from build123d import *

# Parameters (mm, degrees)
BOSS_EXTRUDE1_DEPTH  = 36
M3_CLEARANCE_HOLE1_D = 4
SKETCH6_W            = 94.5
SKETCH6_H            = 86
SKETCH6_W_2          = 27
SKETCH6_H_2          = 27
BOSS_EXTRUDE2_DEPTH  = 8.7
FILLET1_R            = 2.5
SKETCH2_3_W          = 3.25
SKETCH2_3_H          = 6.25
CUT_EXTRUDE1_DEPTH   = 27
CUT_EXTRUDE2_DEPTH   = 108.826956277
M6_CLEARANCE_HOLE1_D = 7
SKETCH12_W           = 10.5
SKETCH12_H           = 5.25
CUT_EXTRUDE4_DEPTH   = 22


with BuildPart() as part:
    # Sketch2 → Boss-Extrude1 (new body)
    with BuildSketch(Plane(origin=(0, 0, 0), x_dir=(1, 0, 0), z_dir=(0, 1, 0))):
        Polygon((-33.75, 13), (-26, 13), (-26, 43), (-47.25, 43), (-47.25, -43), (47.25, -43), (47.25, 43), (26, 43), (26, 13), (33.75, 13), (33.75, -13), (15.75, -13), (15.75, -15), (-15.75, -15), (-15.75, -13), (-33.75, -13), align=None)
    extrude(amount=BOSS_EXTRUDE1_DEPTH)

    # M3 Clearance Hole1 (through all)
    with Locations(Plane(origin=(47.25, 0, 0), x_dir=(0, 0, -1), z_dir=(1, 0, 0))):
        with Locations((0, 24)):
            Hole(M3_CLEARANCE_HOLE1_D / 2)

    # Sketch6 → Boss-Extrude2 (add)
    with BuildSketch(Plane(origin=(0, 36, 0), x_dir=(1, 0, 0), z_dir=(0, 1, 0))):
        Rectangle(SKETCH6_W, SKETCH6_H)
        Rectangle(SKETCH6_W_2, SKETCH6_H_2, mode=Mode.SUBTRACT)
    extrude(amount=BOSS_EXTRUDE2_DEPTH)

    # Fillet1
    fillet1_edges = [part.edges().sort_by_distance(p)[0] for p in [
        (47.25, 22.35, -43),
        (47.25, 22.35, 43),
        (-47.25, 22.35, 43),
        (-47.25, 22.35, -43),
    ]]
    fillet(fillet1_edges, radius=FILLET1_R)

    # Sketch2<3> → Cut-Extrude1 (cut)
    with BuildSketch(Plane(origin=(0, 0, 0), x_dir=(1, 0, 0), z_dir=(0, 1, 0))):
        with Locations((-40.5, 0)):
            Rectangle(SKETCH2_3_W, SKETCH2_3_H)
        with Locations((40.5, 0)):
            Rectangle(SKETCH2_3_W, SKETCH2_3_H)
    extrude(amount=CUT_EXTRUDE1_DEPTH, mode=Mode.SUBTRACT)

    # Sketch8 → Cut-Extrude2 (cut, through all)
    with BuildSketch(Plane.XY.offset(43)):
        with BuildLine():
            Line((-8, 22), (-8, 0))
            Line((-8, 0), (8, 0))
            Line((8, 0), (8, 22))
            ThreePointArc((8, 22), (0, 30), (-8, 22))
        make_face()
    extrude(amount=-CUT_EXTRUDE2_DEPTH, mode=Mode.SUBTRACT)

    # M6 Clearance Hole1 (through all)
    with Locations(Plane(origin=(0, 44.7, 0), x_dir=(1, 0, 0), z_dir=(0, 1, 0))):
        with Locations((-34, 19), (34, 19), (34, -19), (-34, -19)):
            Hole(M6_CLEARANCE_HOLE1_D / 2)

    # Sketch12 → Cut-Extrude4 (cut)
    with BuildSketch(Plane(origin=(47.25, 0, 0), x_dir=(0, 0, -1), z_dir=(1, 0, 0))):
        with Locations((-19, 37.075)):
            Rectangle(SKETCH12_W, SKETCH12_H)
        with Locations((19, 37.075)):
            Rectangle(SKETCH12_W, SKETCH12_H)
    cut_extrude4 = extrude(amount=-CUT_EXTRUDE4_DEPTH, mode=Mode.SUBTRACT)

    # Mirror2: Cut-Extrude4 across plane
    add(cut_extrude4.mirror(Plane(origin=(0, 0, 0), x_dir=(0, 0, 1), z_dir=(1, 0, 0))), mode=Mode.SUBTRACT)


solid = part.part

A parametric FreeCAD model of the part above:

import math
import FreeCAD as App
import Part
import Sketcher

V = App.Vector
Q = App.Units.Quantity


def edges_at(feature, points):
    """Names of the edges that pass closest to the given points."""
    edges = feature.Shape.Edges
    near = lambda p: min(range(len(edges)), key=lambda i: edges[i].distToShape(Part.Vertex(*p))[0])
    return sorted({f"Edge{near(p) + 1}" for p in points})

doc = App.newDocument("Part")
body = doc.addObject("PartDesign::Body", "Body")

# Sketch on XZ plane
sketch1 = body.newObject("Sketcher::SketchObject", "Sketch")
sketch1.AttachmentSupport = (doc.getObject("XZ_Plane"), [""])
sketch1.MapMode = "FlatFace"
sketch1.addGeometry(Part.LineSegment(V(-33.8, -13, 0), V(-26, -13, 0)), False)
sketch1.addGeometry(Part.LineSegment(V(-26, -13, 0), V(-26, -43, 0)), False)
sketch1.addGeometry(Part.LineSegment(V(-26, -43, 0), V(-47.2, -43, 0)), False)
sketch1.addGeometry(Part.LineSegment(V(-47.2, -43, 0), V(-47.2, 43, 0)), False)
sketch1.addGeometry(Part.LineSegment(V(-47.2, 43, 0), V(47.2, 43, 0)), False)
sketch1.addGeometry(Part.LineSegment(V(47.2, 43, 0), V(47.2, -43, 0)), False)
sketch1.addGeometry(Part.LineSegment(V(47.2, -43, 0), V(26, -43, 0)), False)
sketch1.addGeometry(Part.LineSegment(V(26, -43, 0), V(26, -13, 0)), False)
sketch1.addGeometry(Part.LineSegment(V(26, -13, 0), V(33.8, -13, 0)), False)
sketch1.addGeometry(Part.LineSegment(V(33.8, -13, 0), V(33.8, 13, 0)), False)
sketch1.addGeometry(Part.LineSegment(V(33.8, 13, 0), V(15.8, 13, 0)), False)
sketch1.addGeometry(Part.LineSegment(V(15.8, 13, 0), V(15.8, 15, 0)), False)
sketch1.addGeometry(Part.LineSegment(V(15.8, 15, 0), V(-15.8, 15, 0)), False)
sketch1.addGeometry(Part.LineSegment(V(-15.8, 15, 0), V(-15.8, 13, 0)), False)
sketch1.addGeometry(Part.LineSegment(V(-15.8, 13, 0), V(-33.8, 13, 0)), False)
sketch1.addGeometry(Part.LineSegment(V(-33.8, 13, 0), V(-33.8, -13, 0)), False)
sketch1.addConstraint(Sketcher.Constraint("Coincident", 0, 2, 1, 1))
sketch1.addConstraint(Sketcher.Constraint("Coincident", 1, 2, 2, 1))
sketch1.addConstraint(Sketcher.Constraint("Coincident", 2, 2, 3, 1))
sketch1.addConstraint(Sketcher.Constraint("Coincident", 3, 2, 4, 1))
sketch1.addConstraint(Sketcher.Constraint("Coincident", 4, 2, 5, 1))
sketch1.addConstraint(Sketcher.Constraint("Coincident", 5, 2, 6, 1))
sketch1.addConstraint(Sketcher.Constraint("Coincident", 6, 2, 7, 1))
sketch1.addConstraint(Sketcher.Constraint("Coincident", 7, 2, 8, 1))
sketch1.addConstraint(Sketcher.Constraint("Coincident", 8, 2, 9, 1))
sketch1.addConstraint(Sketcher.Constraint("Coincident", 9, 2, 10, 1))
sketch1.addConstraint(Sketcher.Constraint("Coincident", 10, 2, 11, 1))
sketch1.addConstraint(Sketcher.Constraint("Coincident", 11, 2, 12, 1))
sketch1.addConstraint(Sketcher.Constraint("Coincident", 12, 2, 13, 1))
sketch1.addConstraint(Sketcher.Constraint("Coincident", 13, 2, 14, 1))
sketch1.addConstraint(Sketcher.Constraint("Coincident", 14, 2, 15, 1))
sketch1.addConstraint(Sketcher.Constraint("Coincident", 15, 2, 0, 1))
sketch1.addConstraint(Sketcher.Constraint("Horizontal", 0))
sketch1.addConstraint(Sketcher.Constraint("Vertical", 1))
sketch1.addConstraint(Sketcher.Constraint("Horizontal", 2))
sketch1.addConstraint(Sketcher.Constraint("Vertical", 3))
sketch1.addConstraint(Sketcher.Constraint("Horizontal", 4))
sketch1.addConstraint(Sketcher.Constraint("Vertical", 5))
sketch1.addConstraint(Sketcher.Constraint("Horizontal", 6))
sketch1.addConstraint(Sketcher.Constraint("Vertical", 7))
sketch1.addConstraint(Sketcher.Constraint("Horizontal", 8))
sketch1.addConstraint(Sketcher.Constraint("Vertical", 9))
sketch1.addConstraint(Sketcher.Constraint("Horizontal", 10))
sketch1.addConstraint(Sketcher.Constraint("Vertical", 11))
sketch1.addConstraint(Sketcher.Constraint("Horizontal", 12))
sketch1.addConstraint(Sketcher.Constraint("Vertical", 13))
sketch1.addConstraint(Sketcher.Constraint("Horizontal", 14))
sketch1.addConstraint(Sketcher.Constraint("Vertical", 15))
sketch1.addConstraint(Sketcher.Constraint("Symmetric", 2, 2, 4, 2, -1, 1))
sketch1.addConstraint(Sketcher.Constraint("Symmetric", 8, 2, 14, 2, -1, 1))
sketch1.addConstraint(Sketcher.Constraint("Symmetric", 1, 2, 6, 2, -2))
sketch1.addConstraint(Sketcher.Constraint("Symmetric", 10, 2, 13, 2, -2))
sketch1.addConstraint(Sketcher.Constraint("Horizontal", 0, 2, 7, 2))
sketch1.addConstraint(Sketcher.Constraint("DistanceX", 10, 2, 10, 1, Q("18 mm")))
sketch1.addConstraint(Sketcher.Constraint("DistanceY", 1, 2, 1, 1, Q("30 mm")))
sketch1.addConstraint(Sketcher.Constraint("DistanceY", 3, 1, 3, 2, Q("86 mm")))
sketch1.addConstraint(Sketcher.Constraint("DistanceY", 11, 1, 11, 2, Q("2 mm")))
sketch1.addConstraint(Sketcher.Constraint("DistanceX", 4, 1, 4, 2, Q("94.5 mm")))
sketch1.addConstraint(Sketcher.Constraint("DistanceX", 12, 2, 12, 1, Q("31.5 mm")))
sketch1.addConstraint(Sketcher.Constraint("DistanceX", 0, 2, -1, 1, Q("26 mm")))
pad1 = body.newObject("PartDesign::Pad", "Pad")
pad1.Profile = sketch1
pad1.Length = 36
pad1.Reversed = True

# Sketch on YZ plane
sketch2 = body.newObject("Sketcher::SketchObject", "Sketch001")
sketch2.AttachmentSupport = (doc.getObject("YZ_Plane"), [""])
sketch2.MapMode = "FlatFace"
sketch2.AttachmentOffset = App.Placement(V(0, 0, 47.25), App.Rotation())
sketch2.addGeometry(Part.Circle(V(24, 0, 0), V(0, 0, 1), 2), False)
sketch2.addConstraint(Sketcher.Constraint("PointOnObject", 0, 3, -1))
sketch2.addConstraint(Sketcher.Constraint("Diameter", 0, Q("4 mm")))
sketch2.addConstraint(Sketcher.Constraint("DistanceX", -1, 1, 0, 3, Q("24 mm")))
doc.recompute()
hole = body.newObject("PartDesign::Hole", "Hole")
hole.Profile = sketch2
hole.ThreadType = "None"
hole.Diameter = 4
hole.DepthType = "ThroughAll"

# Sketch on XZ plane
sketch3 = body.newObject("Sketcher::SketchObject", "Sketch002")
sketch3.AttachmentSupport = (doc.getObject("XZ_Plane"), [""])
sketch3.MapMode = "FlatFace"
sketch3.AttachmentOffset = App.Placement(V(0, 0, -36), App.Rotation())
sketch3.addGeometry(Part.LineSegment(V(-47, -43, 0), V(-47, 43, 0)), False)
sketch3.addGeometry(Part.LineSegment(V(-47, 43, 0), V(47, 43, 0)), False)
sketch3.addGeometry(Part.LineSegment(V(47, 43, 0), V(47, -43, 0)), False)
sketch3.addGeometry(Part.LineSegment(V(47, -43, 0), V(-47, -43, 0)), False)
sketch3.addGeometry(Part.LineSegment(V(14, 14, 0), V(-14, 14, 0)), False)
sketch3.addGeometry(Part.LineSegment(V(-14, 14, 0), V(-14, -14, 0)), False)
sketch3.addGeometry(Part.LineSegment(V(-14, -14, 0), V(14, -14, 0)), False)
sketch3.addGeometry(Part.LineSegment(V(14, -14, 0), V(14, 14, 0)), False)
sketch3.addConstraint(Sketcher.Constraint("Coincident", 0, 2, 1, 1))
sketch3.addConstraint(Sketcher.Constraint("Coincident", 1, 2, 2, 1))
sketch3.addConstraint(Sketcher.Constraint("Coincident", 2, 2, 3, 1))
sketch3.addConstraint(Sketcher.Constraint("Coincident", 3, 2, 0, 1))
sketch3.addConstraint(Sketcher.Constraint("Coincident", 4, 2, 5, 1))
sketch3.addConstraint(Sketcher.Constraint("Coincident", 5, 2, 6, 1))
sketch3.addConstraint(Sketcher.Constraint("Coincident", 6, 2, 7, 1))
sketch3.addConstraint(Sketcher.Constraint("Coincident", 7, 2, 4, 1))
sketch3.addConstraint(Sketcher.Constraint("Vertical", 0))
sketch3.addConstraint(Sketcher.Constraint("Horizontal", 1))
sketch3.addConstraint(Sketcher.Constraint("Vertical", 2))
sketch3.addConstraint(Sketcher.Constraint("Horizontal", 3))
sketch3.addConstraint(Sketcher.Constraint("Horizontal", 4))
sketch3.addConstraint(Sketcher.Constraint("Vertical", 5))
sketch3.addConstraint(Sketcher.Constraint("Horizontal", 6))
sketch3.addConstraint(Sketcher.Constraint("Vertical", 7))
sketch3.addConstraint(Sketcher.Constraint("Symmetric", 0, 2, 2, 2, -1, 1))
sketch3.addConstraint(Sketcher.Constraint("Symmetric", 4, 2, 6, 2, -1, 1))
sketch3.addConstraint(Sketcher.Constraint("Equal", 6, 5))
sketch3.addConstraint(Sketcher.Constraint("DistanceX", 4, 2, 4, 1, Q("27 mm")))
sketch3.addConstraint(Sketcher.Constraint("DistanceY", 0, 1, 0, 2, Q("86 mm")))
sketch3.addConstraint(Sketcher.Constraint("DistanceX", 1, 1, 1, 2, Q("94.5 mm")))
pad2 = body.newObject("PartDesign::Pad", "Pad001")
pad2.Profile = sketch3
pad2.Length = 8.7
pad2.Reversed = True
doc.recompute()

fillet = body.newObject("PartDesign::Fillet", "Fillet")
fillet.Base = (pad2, edges_at(pad2, [
    (47.25, 22.35, -43),
    (47.25, 22.35, 43),
    (-47.25, 22.35, 43),
    (-47.25, 22.35, -43),
]))
fillet.Radius = 2.5

# Sketch on XZ plane
sketch4 = body.newObject("Sketcher::SketchObject", "Sketch003")
sketch4.AttachmentSupport = (doc.getObject("XZ_Plane"), [""])
sketch4.MapMode = "FlatFace"
sketch4.addGeometry(Part.LineSegment(V(-42.1, -3.1, 0), V(-42.1, 3.1, 0)), False)
sketch4.addGeometry(Part.LineSegment(V(-42.1, 3.1, 0), V(-38.9, 3.1, 0)), False)
sketch4.addGeometry(Part.LineSegment(V(-38.9, 3.1, 0), V(-38.9, -3.1, 0)), False)
sketch4.addGeometry(Part.LineSegment(V(-38.9, -3.1, 0), V(-42.1, -3.1, 0)), False)
sketch4.addGeometry(Part.LineSegment(V(38.9, -3.1, 0), V(38.9, 3.1, 0)), False)
sketch4.addGeometry(Part.LineSegment(V(38.9, 3.1, 0), V(42.1, 3.1, 0)), False)
sketch4.addGeometry(Part.LineSegment(V(42.1, 3.1, 0), V(42.1, -3.1, 0)), False)
sketch4.addGeometry(Part.LineSegment(V(42.1, -3.1, 0), V(38.9, -3.1, 0)), False)
sketch4.addConstraint(Sketcher.Constraint("Coincident", 0, 2, 1, 1))
sketch4.addConstraint(Sketcher.Constraint("Coincident", 1, 2, 2, 1))
sketch4.addConstraint(Sketcher.Constraint("Coincident", 2, 2, 3, 1))
sketch4.addConstraint(Sketcher.Constraint("Coincident", 3, 2, 0, 1))
sketch4.addConstraint(Sketcher.Constraint("Coincident", 4, 2, 5, 1))
sketch4.addConstraint(Sketcher.Constraint("Coincident", 5, 2, 6, 1))
sketch4.addConstraint(Sketcher.Constraint("Coincident", 6, 2, 7, 1))
sketch4.addConstraint(Sketcher.Constraint("Coincident", 7, 2, 4, 1))
sketch4.addConstraint(Sketcher.Constraint("Vertical", 0))
sketch4.addConstraint(Sketcher.Constraint("Horizontal", 1))
sketch4.addConstraint(Sketcher.Constraint("Vertical", 2))
sketch4.addConstraint(Sketcher.Constraint("Horizontal", 3))
sketch4.addConstraint(Sketcher.Constraint("Vertical", 4))
sketch4.addConstraint(Sketcher.Constraint("Horizontal", 5))
sketch4.addConstraint(Sketcher.Constraint("Vertical", 6))
sketch4.addConstraint(Sketcher.Constraint("Horizontal", 7))
sketch4.addConstraint(Sketcher.Constraint("Symmetric", 2, 2, 4, 2, -1, 1))
sketch4.addConstraint(Sketcher.Constraint("Symmetric", 0, 2, 6, 2, -1, 1))
sketch4.addConstraint(Sketcher.Constraint("Horizontal", 1, 2, 4, 2))
sketch4.addConstraint(Sketcher.Constraint("DistanceX", 0, 2, 4, 2, Q("81 mm")))
sketch4.addConstraint(Sketcher.Constraint("DistanceX", 1, 1, 1, 2, Q("3.25 mm")))
sketch4.addConstraint(Sketcher.Constraint("DistanceY", 0, 1, 0, 2, Q("6.25 mm")))
pocket1 = body.newObject("PartDesign::Pocket", "Pocket")
pocket1.Profile = sketch4
pocket1.Length = 27

# Sketch on XY plane
sketch5 = body.newObject("Sketcher::SketchObject", "Sketch004")
sketch5.AttachmentSupport = (doc.getObject("XY_Plane"), [""])
sketch5.MapMode = "FlatFace"
sketch5.AttachmentOffset = App.Placement(V(0, 0, 43), App.Rotation())
sketch5.addGeometry(Part.LineSegment(V(-8, 22, 0), V(-8, 0, 0)), False)
sketch5.addGeometry(Part.LineSegment(V(-8, 0, 0), V(8, 0, 0)), False)
sketch5.addGeometry(Part.LineSegment(V(8, 0, 0), V(8, 22, 0)), False)
sketch5.addGeometry(Part.ArcOfCircle(Part.Circle(V(0, 22, 0), V(0, 0, 1), 8), math.radians(0), math.radians(180)), False)
sketch5.addConstraint(Sketcher.Constraint("Coincident", 0, 2, 1, 1))
sketch5.addConstraint(Sketcher.Constraint("Coincident", 1, 2, 2, 1))
sketch5.addConstraint(Sketcher.Constraint("Tangent", 2, 2, 3, 1))
sketch5.addConstraint(Sketcher.Constraint("Tangent", 3, 2, 0, 1))
sketch5.addConstraint(Sketcher.Constraint("Vertical", 0))
sketch5.addConstraint(Sketcher.Constraint("Horizontal", 1))
sketch5.addConstraint(Sketcher.Constraint("Vertical", 2))
sketch5.addConstraint(Sketcher.Constraint("Symmetric", 0, 2, 1, 2, -1, 1))
sketch5.addConstraint(Sketcher.Constraint("Radius", 3, Q("8 mm")))
sketch5.addConstraint(Sketcher.Constraint("DistanceY", 0, 2, 0, 1, Q("22 mm")))
pocket2 = body.newObject("PartDesign::Pocket", "Pocket001")
pocket2.Profile = sketch5
pocket2.Type = "ThroughAll"

# Sketch on XZ plane
sketch6 = body.newObject("Sketcher::SketchObject", "Sketch005")
sketch6.AttachmentSupport = (doc.getObject("XZ_Plane"), [""])
sketch6.MapMode = "FlatFace"
sketch6.AttachmentOffset = App.Placement(V(0, 0, -44.7), App.Rotation())
sketch6.addGeometry(Part.Circle(V(-34, -19, 0), V(0, 0, 1), 3.5), False)
sketch6.addGeometry(Part.Circle(V(34, -19, 0), V(0, 0, 1), 3.5), False)
sketch6.addGeometry(Part.Circle(V(34, 19, 0), V(0, 0, 1), 3.5), False)
sketch6.addGeometry(Part.Circle(V(-34, 19, 0), V(0, 0, 1), 3.5), False)
sketch6.addConstraint(Sketcher.Constraint("Equal", 0, 1))
sketch6.addConstraint(Sketcher.Constraint("Equal", 1, 2))
sketch6.addConstraint(Sketcher.Constraint("Equal", 2, 3))
sketch6.addConstraint(Sketcher.Constraint("Symmetric", 0, 3, 2, 3, -1, 1))
sketch6.addConstraint(Sketcher.Constraint("Symmetric", 1, 3, 3, 3, -1, 1))
sketch6.addConstraint(Sketcher.Constraint("Symmetric", 0, 3, 1, 3, -2))
sketch6.addConstraint(Sketcher.Constraint("Diameter", 0, Q("7 mm")))
sketch6.addConstraint(Sketcher.Constraint("DistanceX", 0, 3, -1, 1, Q("34 mm")))
sketch6.addConstraint(Sketcher.Constraint("DistanceY", 0, 3, -1, 1, Q("19 mm")))
doc.recompute()
hole2 = body.newObject("PartDesign::Hole", "Hole001")
hole2.Profile = sketch6
hole2.ThreadType = "None"
hole2.Diameter = 7
hole2.DepthType = "ThroughAll"
hole2.Reversed = True

# Sketch on YZ plane
sketch7 = body.newObject("Sketcher::SketchObject", "Sketch006")
sketch7.AttachmentSupport = (doc.getObject("YZ_Plane"), [""])
sketch7.MapMode = "FlatFace"
sketch7.AttachmentOffset = App.Placement(V(0, 0, 47.25), App.Rotation())
sketch7.addGeometry(Part.LineSegment(V(40, 24, 0), V(34, 24, 0)), False)
sketch7.addGeometry(Part.LineSegment(V(34, 24, 0), V(34, 14, 0)), False)
sketch7.addGeometry(Part.LineSegment(V(34, 14, 0), V(40, 14, 0)), False)
sketch7.addGeometry(Part.LineSegment(V(40, 14, 0), V(40, 24, 0)), False)
sketch7.addGeometry(Part.LineSegment(V(40, -14, 0), V(34, -14, 0)), False)
sketch7.addGeometry(Part.LineSegment(V(34, -14, 0), V(34, -24, 0)), False)
sketch7.addGeometry(Part.LineSegment(V(34, -24, 0), V(40, -24, 0)), False)
sketch7.addGeometry(Part.LineSegment(V(40, -24, 0), V(40, -14, 0)), False)
sketch7.addConstraint(Sketcher.Constraint("Coincident", 0, 2, 1, 1))
sketch7.addConstraint(Sketcher.Constraint("Coincident", 1, 2, 2, 1))
sketch7.addConstraint(Sketcher.Constraint("Coincident", 2, 2, 3, 1))
sketch7.addConstraint(Sketcher.Constraint("Coincident", 3, 2, 0, 1))
sketch7.addConstraint(Sketcher.Constraint("Coincident", 4, 2, 5, 1))
sketch7.addConstraint(Sketcher.Constraint("Coincident", 5, 2, 6, 1))
sketch7.addConstraint(Sketcher.Constraint("Coincident", 6, 2, 7, 1))
sketch7.addConstraint(Sketcher.Constraint("Coincident", 7, 2, 4, 1))
sketch7.addConstraint(Sketcher.Constraint("Horizontal", 0))
sketch7.addConstraint(Sketcher.Constraint("Vertical", 1))
sketch7.addConstraint(Sketcher.Constraint("Horizontal", 2))
sketch7.addConstraint(Sketcher.Constraint("Vertical", 3))
sketch7.addConstraint(Sketcher.Constraint("Horizontal", 4))
sketch7.addConstraint(Sketcher.Constraint("Vertical", 5))
sketch7.addConstraint(Sketcher.Constraint("Horizontal", 6))
sketch7.addConstraint(Sketcher.Constraint("Vertical", 7))
sketch7.addConstraint(Sketcher.Constraint("Symmetric", 1, 2, 4, 2, -1))
sketch7.addConstraint(Sketcher.Constraint("Symmetric", 3, 2, 6, 2, -1))
sketch7.addConstraint(Sketcher.Constraint("DistanceY", 1, 2, 1, 1, Q("10.5 mm")))
sketch7.addConstraint(Sketcher.Constraint("DistanceY", 4, 2, 0, 2, Q("38 mm")))
sketch7.addConstraint(Sketcher.Constraint("DistanceX", 0, 2, 0, 1, Q("5.25 mm")))
sketch7.addConstraint(Sketcher.Constraint("DistanceX", -1, 1, 2, 2, Q("39.7 mm")))
pocket3 = body.newObject("PartDesign::Pocket", "Pocket002")
pocket3.Profile = sketch7
pocket3.Length = 22
doc.recompute()

mirrored = body.newObject("PartDesign::Mirrored", "Mirrored")
mirrored.Originals = [pocket3]
mirrored.MirrorPlane = (doc.getObject("YZ_Plane"), [""])
body.Tip = mirrored

doc.recompute()
